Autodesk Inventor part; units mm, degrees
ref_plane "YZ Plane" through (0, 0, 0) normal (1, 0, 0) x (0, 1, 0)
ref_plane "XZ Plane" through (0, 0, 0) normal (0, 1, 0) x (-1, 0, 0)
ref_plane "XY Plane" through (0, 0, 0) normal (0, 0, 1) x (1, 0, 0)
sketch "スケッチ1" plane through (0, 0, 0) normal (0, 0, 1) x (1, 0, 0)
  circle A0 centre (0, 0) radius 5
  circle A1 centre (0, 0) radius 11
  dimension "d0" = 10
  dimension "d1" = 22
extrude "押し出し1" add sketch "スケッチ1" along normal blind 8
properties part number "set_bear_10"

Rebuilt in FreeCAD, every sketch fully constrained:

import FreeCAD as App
import Part
import Sketcher

V = App.Vector
Q = App.Units.Quantity

doc = App.newDocument("Part")
params = doc.addObject("Spreadsheet::Sheet", "Params")
for row, (alias, value) in enumerate([
    ("sketch1_diameter", "22 mm"),
    ("sketch1_diameter2", "10 mm"),
    ("pad1_length", "8 mm"),
], start=1):
    params.set(f"A{row}", alias)
    params.set(f"B{row}", "=" + value)
    params.setAlias(f"B{row}", alias)

body = doc.addObject("PartDesign::Body", "Body")

sketch1 = body.newObject("Sketcher::SketchObject", "Sketch")
sketch1.AttachmentSupport = (doc.getObject("XY_Plane"), [""])
sketch1.MapMode = "FlatFace"
sketch1.addGeometry([
    Part.Circle(V(0, 0, 0), V(0, 0, 1), 11),
    Part.Circle(V(0, 0, 0), V(0, 0, 1), 5),
], False)
sketch1.addConstraint([
    Sketcher.Constraint("Coincident", 0, 3, -1, 1),
    Sketcher.Constraint("Coincident", 1, 3, -1, 1),
    Sketcher.Constraint("Diameter", 0, Q("22 mm")),
    Sketcher.Constraint("Diameter", 1, Q("10 mm")),
])
sketch1.setExpression("Constraints[2]", "Params.sketch1_diameter")
sketch1.setExpression("Constraints[3]", "Params.sketch1_diameter2")
pad1 = body.newObject("PartDesign::Pad", "Pad")
pad1.Profile = sketch1
pad1.setExpression("Length", "Params.pad1_length")

doc.recompute()
